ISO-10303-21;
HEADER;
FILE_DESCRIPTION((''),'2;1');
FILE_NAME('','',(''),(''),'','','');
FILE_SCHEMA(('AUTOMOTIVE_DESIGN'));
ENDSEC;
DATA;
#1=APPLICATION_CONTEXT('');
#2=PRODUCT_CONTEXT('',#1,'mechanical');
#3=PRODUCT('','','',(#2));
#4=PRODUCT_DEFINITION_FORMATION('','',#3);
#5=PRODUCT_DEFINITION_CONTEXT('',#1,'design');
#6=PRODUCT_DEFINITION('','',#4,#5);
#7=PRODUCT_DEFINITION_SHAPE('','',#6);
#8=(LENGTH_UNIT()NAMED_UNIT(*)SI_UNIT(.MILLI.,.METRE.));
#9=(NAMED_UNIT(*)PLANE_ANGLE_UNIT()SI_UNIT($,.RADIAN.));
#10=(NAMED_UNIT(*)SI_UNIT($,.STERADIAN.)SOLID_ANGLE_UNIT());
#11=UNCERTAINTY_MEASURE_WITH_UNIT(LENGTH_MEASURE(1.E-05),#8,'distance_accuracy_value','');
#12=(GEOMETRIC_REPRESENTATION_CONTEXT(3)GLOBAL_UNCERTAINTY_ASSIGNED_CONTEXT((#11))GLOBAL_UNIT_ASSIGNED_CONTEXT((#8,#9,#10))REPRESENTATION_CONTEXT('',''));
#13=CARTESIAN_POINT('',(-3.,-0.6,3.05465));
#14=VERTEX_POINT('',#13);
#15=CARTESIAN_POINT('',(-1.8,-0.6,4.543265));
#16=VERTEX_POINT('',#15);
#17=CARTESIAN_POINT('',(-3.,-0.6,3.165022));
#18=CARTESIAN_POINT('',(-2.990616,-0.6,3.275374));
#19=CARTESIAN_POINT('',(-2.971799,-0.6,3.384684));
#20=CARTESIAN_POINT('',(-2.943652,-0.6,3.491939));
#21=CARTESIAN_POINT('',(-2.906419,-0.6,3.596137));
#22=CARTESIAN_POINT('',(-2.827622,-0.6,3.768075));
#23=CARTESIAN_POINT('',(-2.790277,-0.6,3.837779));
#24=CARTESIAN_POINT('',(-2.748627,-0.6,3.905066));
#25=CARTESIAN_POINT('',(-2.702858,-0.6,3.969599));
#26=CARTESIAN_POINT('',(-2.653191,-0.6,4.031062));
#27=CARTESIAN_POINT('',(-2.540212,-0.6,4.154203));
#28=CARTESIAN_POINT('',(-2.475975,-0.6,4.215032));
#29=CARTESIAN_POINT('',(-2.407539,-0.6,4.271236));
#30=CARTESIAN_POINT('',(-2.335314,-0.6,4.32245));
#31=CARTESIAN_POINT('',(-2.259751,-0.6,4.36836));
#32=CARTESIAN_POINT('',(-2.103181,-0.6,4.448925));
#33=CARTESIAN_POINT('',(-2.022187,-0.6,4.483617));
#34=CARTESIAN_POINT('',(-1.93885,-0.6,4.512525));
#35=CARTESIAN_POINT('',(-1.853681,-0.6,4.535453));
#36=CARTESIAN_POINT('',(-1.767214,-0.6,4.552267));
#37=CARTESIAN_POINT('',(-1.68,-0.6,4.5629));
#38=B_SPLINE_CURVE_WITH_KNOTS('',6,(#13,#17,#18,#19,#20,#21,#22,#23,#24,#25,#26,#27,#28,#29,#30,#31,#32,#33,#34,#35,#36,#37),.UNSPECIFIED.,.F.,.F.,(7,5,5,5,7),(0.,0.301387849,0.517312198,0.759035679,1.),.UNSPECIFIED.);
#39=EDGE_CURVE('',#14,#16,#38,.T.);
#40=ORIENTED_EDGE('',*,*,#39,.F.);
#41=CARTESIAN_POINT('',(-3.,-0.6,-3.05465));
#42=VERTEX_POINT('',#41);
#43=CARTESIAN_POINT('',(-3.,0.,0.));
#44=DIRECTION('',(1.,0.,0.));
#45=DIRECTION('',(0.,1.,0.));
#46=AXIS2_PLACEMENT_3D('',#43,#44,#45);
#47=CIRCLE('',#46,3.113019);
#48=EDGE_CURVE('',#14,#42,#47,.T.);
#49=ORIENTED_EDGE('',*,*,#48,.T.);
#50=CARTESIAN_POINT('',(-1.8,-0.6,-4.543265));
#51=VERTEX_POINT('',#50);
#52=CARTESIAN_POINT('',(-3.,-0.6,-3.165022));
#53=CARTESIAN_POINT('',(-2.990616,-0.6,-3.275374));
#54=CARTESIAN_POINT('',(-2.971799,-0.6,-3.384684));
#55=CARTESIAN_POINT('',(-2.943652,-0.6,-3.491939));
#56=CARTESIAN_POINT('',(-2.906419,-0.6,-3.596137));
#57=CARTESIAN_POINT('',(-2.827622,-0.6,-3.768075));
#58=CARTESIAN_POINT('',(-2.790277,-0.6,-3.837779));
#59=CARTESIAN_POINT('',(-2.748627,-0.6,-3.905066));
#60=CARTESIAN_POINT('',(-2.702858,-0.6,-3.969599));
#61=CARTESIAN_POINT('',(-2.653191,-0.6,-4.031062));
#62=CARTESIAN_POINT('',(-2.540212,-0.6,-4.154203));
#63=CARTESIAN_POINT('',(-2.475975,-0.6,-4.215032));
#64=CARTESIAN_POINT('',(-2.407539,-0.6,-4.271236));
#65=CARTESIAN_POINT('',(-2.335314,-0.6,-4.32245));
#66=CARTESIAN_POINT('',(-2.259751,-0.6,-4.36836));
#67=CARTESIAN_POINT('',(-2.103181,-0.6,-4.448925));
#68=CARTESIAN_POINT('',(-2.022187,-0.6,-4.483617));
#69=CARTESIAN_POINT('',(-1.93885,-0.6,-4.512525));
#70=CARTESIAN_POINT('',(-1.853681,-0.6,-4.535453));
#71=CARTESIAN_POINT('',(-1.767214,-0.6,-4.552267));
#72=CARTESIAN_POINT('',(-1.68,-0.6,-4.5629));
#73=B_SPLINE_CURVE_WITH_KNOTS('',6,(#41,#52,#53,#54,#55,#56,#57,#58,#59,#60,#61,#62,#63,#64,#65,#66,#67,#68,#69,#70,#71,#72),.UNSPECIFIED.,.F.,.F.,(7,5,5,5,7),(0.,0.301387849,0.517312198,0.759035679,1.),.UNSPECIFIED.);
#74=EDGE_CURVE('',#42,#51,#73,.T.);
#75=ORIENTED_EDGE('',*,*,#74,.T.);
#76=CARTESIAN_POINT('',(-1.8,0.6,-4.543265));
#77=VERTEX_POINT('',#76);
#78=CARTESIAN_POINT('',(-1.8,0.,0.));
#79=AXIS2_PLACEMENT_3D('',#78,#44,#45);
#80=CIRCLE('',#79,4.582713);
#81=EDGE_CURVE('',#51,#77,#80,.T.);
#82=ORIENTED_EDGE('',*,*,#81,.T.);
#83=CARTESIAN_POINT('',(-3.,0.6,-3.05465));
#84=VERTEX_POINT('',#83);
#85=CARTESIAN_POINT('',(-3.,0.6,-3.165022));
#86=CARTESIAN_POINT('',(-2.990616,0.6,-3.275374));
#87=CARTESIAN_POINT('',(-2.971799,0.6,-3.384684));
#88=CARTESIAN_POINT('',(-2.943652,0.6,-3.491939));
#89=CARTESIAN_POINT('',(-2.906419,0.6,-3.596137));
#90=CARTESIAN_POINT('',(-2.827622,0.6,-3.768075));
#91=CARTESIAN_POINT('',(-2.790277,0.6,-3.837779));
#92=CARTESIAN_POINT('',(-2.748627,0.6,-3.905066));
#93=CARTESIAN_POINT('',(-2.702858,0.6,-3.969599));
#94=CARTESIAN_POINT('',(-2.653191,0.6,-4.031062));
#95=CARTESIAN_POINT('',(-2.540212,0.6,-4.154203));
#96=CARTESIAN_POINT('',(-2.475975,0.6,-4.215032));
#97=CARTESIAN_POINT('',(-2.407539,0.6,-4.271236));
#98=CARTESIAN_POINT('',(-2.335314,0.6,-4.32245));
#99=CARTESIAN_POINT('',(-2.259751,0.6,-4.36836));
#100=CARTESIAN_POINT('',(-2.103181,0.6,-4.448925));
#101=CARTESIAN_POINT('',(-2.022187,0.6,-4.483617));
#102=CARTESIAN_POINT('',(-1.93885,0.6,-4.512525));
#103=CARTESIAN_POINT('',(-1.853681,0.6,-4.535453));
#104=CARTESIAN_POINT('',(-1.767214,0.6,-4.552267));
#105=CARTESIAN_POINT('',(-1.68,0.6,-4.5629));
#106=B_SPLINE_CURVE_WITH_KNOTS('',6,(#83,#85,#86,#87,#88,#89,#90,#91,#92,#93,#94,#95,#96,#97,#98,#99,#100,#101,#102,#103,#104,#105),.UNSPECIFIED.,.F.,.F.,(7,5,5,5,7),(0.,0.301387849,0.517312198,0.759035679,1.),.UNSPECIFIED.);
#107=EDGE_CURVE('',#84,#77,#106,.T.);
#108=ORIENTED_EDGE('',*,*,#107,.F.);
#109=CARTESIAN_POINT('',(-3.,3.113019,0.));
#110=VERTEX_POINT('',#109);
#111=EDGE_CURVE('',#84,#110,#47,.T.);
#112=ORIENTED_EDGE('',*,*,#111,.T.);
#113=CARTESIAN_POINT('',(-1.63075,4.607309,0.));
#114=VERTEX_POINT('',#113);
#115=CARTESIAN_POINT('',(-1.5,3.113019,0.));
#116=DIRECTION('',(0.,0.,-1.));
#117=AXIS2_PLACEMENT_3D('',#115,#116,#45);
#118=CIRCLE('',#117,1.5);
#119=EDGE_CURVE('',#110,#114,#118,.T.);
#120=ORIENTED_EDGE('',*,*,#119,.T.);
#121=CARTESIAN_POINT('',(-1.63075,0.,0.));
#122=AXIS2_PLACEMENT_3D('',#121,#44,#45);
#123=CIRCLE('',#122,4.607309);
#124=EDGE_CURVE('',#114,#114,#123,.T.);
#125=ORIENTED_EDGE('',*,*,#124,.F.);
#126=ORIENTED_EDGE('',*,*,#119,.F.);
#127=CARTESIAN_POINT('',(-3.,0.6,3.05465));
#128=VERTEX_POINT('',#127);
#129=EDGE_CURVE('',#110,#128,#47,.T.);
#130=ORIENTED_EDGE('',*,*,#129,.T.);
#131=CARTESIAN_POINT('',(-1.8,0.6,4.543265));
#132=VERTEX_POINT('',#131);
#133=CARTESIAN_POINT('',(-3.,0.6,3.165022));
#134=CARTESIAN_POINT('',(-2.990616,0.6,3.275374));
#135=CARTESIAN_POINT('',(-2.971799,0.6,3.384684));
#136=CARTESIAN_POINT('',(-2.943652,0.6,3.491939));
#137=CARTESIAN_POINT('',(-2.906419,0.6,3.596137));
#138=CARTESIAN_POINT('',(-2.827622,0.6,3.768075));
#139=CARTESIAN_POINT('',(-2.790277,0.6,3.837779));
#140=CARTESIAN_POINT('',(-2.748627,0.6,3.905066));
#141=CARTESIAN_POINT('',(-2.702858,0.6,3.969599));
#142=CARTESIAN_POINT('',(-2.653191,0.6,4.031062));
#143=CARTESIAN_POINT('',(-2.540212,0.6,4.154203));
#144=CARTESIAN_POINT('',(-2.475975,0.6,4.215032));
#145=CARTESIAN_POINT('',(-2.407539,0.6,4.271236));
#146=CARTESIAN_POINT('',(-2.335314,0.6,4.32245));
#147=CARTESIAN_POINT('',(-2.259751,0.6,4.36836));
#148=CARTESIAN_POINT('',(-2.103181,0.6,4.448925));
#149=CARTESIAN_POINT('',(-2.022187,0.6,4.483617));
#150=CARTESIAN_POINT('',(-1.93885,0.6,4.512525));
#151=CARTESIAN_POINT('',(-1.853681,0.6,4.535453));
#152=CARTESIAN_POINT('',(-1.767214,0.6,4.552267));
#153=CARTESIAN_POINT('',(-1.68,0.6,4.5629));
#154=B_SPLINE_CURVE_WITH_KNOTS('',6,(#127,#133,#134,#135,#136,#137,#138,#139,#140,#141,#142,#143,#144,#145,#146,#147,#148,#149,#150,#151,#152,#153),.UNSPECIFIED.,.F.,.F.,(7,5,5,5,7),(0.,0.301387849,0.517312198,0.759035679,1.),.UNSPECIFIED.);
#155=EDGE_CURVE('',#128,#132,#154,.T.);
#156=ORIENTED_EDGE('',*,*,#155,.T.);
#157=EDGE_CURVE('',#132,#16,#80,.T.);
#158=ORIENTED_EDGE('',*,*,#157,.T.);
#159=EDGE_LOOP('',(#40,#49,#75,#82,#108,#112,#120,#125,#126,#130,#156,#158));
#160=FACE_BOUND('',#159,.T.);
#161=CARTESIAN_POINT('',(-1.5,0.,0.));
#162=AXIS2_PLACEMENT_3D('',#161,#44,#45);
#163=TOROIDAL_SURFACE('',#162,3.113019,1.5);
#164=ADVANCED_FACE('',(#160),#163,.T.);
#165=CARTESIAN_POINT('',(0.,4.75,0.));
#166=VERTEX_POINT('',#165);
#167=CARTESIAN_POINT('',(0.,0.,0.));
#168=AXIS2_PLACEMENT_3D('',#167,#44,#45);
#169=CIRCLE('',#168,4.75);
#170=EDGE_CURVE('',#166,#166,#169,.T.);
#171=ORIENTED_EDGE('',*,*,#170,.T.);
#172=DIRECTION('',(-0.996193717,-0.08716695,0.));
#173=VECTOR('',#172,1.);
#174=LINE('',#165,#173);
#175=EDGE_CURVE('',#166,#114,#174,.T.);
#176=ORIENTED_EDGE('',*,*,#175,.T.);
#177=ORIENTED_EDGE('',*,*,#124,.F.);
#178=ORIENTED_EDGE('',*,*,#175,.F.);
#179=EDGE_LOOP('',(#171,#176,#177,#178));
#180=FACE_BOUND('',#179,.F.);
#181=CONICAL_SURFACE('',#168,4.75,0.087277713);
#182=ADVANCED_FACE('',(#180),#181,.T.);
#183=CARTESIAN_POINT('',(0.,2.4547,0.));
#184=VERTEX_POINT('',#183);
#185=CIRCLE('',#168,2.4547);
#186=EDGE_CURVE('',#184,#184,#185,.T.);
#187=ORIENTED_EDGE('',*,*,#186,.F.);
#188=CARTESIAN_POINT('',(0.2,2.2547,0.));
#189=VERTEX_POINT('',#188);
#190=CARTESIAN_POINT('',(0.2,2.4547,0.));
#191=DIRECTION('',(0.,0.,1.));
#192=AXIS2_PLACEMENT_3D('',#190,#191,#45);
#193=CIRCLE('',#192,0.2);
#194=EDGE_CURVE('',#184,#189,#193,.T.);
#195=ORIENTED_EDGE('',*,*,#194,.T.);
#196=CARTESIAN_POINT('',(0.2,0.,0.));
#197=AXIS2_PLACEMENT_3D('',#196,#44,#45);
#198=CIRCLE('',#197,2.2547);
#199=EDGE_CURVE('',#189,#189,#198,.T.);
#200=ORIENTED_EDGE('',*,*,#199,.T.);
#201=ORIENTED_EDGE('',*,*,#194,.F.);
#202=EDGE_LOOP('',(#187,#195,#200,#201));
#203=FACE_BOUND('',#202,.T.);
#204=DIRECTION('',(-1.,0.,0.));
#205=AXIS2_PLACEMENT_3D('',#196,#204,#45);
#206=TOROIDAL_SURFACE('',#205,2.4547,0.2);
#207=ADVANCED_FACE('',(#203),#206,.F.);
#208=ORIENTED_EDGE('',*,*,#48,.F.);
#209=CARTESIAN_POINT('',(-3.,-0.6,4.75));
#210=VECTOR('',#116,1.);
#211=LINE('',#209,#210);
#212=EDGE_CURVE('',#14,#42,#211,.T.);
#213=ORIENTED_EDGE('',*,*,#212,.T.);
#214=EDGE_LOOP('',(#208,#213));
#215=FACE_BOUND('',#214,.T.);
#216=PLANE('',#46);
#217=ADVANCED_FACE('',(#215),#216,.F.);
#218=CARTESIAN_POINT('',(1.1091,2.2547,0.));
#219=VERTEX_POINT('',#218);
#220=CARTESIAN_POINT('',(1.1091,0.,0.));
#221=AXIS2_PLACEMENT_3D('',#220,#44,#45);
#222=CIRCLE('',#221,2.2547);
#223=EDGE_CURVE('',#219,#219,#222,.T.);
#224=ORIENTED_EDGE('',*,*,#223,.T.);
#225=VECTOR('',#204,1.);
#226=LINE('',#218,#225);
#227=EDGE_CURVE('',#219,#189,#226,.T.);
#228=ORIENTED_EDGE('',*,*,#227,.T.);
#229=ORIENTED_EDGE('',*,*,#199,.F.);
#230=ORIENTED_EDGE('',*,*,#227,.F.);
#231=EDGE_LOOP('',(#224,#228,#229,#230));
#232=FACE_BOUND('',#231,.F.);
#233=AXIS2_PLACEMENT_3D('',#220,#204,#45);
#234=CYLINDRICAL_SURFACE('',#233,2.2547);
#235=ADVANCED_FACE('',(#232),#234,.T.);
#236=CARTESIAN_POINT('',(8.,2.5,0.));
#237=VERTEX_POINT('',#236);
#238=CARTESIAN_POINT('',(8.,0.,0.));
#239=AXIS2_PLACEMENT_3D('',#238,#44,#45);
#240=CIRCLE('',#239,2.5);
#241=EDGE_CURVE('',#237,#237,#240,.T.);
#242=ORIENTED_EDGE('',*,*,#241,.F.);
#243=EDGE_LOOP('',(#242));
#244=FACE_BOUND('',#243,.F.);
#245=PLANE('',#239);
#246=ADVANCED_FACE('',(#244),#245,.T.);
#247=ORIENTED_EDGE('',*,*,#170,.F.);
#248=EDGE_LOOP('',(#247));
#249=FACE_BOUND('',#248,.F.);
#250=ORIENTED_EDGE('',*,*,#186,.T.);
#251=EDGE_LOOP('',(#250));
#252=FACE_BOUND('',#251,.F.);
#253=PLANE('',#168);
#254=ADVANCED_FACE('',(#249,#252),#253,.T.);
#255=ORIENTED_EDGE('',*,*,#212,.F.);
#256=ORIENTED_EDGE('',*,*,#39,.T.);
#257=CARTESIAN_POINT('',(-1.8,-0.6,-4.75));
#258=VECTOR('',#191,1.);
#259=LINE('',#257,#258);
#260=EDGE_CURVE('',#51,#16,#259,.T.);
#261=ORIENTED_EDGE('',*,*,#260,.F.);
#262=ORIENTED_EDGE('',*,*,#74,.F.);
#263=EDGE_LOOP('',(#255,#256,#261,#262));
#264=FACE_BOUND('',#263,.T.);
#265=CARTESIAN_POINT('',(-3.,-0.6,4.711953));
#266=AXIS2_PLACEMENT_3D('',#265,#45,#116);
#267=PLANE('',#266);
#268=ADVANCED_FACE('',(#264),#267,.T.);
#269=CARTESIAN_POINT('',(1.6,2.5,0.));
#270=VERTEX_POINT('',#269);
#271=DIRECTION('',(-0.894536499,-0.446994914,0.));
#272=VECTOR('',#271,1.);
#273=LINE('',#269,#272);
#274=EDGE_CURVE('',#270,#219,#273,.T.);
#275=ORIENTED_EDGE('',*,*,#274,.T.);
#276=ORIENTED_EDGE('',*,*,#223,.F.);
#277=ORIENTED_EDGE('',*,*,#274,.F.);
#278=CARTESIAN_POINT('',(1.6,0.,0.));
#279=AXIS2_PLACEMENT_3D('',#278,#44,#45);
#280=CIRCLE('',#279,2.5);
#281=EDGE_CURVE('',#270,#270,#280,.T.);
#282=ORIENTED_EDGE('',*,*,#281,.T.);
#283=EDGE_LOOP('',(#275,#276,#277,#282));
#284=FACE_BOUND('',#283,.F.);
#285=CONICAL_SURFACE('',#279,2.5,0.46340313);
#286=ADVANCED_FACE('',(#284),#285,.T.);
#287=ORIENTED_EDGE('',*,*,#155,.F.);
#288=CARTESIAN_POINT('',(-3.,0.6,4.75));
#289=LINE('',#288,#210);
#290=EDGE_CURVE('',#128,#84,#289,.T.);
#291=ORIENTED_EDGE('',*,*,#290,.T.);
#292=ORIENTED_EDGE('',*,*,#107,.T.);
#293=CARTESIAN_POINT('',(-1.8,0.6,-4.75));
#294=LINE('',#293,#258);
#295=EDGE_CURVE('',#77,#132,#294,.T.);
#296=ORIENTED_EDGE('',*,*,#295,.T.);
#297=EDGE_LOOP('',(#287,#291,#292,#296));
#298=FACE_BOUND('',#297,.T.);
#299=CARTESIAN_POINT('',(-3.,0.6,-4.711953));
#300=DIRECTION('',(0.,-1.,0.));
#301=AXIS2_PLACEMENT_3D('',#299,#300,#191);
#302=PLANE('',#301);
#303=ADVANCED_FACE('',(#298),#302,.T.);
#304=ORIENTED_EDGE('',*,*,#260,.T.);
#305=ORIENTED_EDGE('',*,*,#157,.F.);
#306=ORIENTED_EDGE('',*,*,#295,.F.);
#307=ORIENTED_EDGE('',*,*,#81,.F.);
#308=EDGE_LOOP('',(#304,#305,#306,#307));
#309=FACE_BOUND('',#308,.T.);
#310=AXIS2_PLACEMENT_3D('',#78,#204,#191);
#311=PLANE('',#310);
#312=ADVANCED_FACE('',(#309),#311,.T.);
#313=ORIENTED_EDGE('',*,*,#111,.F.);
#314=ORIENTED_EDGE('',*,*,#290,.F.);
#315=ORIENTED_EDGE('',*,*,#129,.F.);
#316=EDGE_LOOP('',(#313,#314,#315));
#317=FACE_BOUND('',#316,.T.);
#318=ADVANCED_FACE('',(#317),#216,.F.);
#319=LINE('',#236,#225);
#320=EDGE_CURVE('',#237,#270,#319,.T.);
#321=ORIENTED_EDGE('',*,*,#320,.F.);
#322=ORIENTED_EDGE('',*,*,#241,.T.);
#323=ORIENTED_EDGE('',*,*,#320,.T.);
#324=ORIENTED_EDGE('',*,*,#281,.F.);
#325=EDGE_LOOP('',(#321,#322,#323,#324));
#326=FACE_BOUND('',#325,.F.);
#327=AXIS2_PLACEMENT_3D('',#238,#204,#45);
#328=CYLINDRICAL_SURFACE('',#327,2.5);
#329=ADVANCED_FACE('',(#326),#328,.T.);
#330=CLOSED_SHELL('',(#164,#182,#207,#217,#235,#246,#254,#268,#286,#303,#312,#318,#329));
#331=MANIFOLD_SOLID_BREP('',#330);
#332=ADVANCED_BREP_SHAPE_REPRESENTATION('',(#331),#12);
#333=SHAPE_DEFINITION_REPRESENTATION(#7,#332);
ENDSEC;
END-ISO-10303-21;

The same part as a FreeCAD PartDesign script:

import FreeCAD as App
import Part
import Sketcher
Q = App.Units.Quantity


def edges_at(feature, points):
    """Names of the edges that pass closest to the given points."""
    edges = feature.Shape.Edges
    near = lambda p: min(range(len(edges)), key=lambda i: edges[i].distToShape(Part.Vertex(*p))[0])
    return sorted({f"Edge{near(p) + 1}" for p in points})


def add_polygon(sketch, points):
    """Adds a closed chain of lines whose ends are joined by coincident constraints."""
    first, n = sketch.GeometryCount, len(points)
    for a, b in zip(points, points[1:] + points[:1]):
        sketch.addGeometry(Part.LineSegment(App.Vector(*a, 0), App.Vector(*b, 0)), False)
    for i in range(n):
        sketch.addConstraint(Sketcher.Constraint("Coincident", first + i, 2, first + (i + 1) % n, 1))

doc = App.newDocument("Part")
body = doc.addObject("PartDesign::Body", "Body")

# Sketch on XY plane
sketch1 = doc.addObject("Sketcher::SketchObject", "Sketch")
body.addObject(sketch1)
sketch1.AttachmentSupport = (doc.XY_Plane, [""])
sketch1.MapMode = "FlatFace"
add_polygon(sketch1, [(-3, 4.5), (-3, 0), (8, 0), (8, 2.5), (1.6, 2.5), (1.1, 2.3), (0, 2.3), (0, 4.8)])  # lines 0-7
sketch1.addConstraint([
    Sketcher.Constraint("Vertical", 0),
    Sketcher.Constraint("Horizontal", 1),
    Sketcher.Constraint("Vertical", 2),
    Sketcher.Constraint("Horizontal", 3),
    Sketcher.Constraint("Horizontal", 5),
    Sketcher.Constraint("Vertical", 6),
    Sketcher.Constraint("PointOnObject", 0, 2, -1),
    Sketcher.Constraint("PointOnObject", 5, 2, -2),
    Sketcher.Constraint("DistanceX", 3, 2, 3, 1, 6.4),
    Sketcher.Constraint("DistanceX", 0, 2, -1, 1, 3.0),
    Sketcher.Constraint("DistanceX", -1, 1, 1, 2, 8.0),
    Sketcher.Constraint("Angle", 7, Q("-174.9994 deg")),
    Sketcher.Constraint("DistanceY", 2, 1, 2, 2, 2.5),
    Sketcher.Constraint("DistanceX", 4, 2, 3, 2, 0.491),
    Sketcher.Constraint("Angle", 4, Q("-153.449 deg")),
    Sketcher.Constraint("DistanceY", -1, 1, 6, 2, 4.75),
])
revolution = doc.addObject("PartDesign::Revolution", "Revolution")
body.addObject(revolution)
revolution.Profile = sketch1
revolution.ReferenceAxis = (sketch1, ["H_Axis"])
revolution.Angle = 360
doc.recompute()

fillet = doc.addObject("PartDesign::Fillet", "Fillet")
body.addObject(fillet)
fillet.Base = (revolution, edges_at(revolution, [(-3, -4.487, 0)]))
fillet.Radius = 1.5

# Sketch on YZ plane
sketch2 = doc.addObject("Sketcher::SketchObject", "Sketch001")
body.addObject(sketch2)
sketch2.AttachmentSupport = (doc.YZ_Plane, [""])
sketch2.MapMode = "FlatFace"
sketch2.AttachmentOffset = App.Placement(App.Vector(0, 0, -3), App.Rotation())
add_polygon(sketch2, [(-0.6, 4.8), (0.6, 4.8), (0.6, -4.8), (-0.6, -4.8)])  # lines 0-3
sketch2.addConstraint([
    Sketcher.Constraint("Horizontal", 0),
    Sketcher.Constraint("Vertical", 1),
    Sketcher.Constraint("Horizontal", 2),
    Sketcher.Constraint("Vertical", 3),
    Sketcher.Constraint("Symmetric", 0, 2, 2, 2, -1, 1),
    Sketcher.Constraint("DistanceX", 0, 1, 0, 2, 1.2),
    Sketcher.Constraint("DistanceY", 1, 2, 1, 1, 9.5),
])
pocket1 = doc.addObject("PartDesign::Pocket", "Pocket")
body.addObject(pocket1)
pocket1.Profile = sketch2
pocket1.Length = 1.2
pocket1.Reversed = True
doc.recompute()

fillet2 = doc.addObject("PartDesign::Fillet", "Fillet001")
body.addObject(fillet2)
fillet2.Base = (pocket1, edges_at(pocket1, [(0, -2.255, 0)]))
fillet2.Radius = 0.2

doc.recompute()
